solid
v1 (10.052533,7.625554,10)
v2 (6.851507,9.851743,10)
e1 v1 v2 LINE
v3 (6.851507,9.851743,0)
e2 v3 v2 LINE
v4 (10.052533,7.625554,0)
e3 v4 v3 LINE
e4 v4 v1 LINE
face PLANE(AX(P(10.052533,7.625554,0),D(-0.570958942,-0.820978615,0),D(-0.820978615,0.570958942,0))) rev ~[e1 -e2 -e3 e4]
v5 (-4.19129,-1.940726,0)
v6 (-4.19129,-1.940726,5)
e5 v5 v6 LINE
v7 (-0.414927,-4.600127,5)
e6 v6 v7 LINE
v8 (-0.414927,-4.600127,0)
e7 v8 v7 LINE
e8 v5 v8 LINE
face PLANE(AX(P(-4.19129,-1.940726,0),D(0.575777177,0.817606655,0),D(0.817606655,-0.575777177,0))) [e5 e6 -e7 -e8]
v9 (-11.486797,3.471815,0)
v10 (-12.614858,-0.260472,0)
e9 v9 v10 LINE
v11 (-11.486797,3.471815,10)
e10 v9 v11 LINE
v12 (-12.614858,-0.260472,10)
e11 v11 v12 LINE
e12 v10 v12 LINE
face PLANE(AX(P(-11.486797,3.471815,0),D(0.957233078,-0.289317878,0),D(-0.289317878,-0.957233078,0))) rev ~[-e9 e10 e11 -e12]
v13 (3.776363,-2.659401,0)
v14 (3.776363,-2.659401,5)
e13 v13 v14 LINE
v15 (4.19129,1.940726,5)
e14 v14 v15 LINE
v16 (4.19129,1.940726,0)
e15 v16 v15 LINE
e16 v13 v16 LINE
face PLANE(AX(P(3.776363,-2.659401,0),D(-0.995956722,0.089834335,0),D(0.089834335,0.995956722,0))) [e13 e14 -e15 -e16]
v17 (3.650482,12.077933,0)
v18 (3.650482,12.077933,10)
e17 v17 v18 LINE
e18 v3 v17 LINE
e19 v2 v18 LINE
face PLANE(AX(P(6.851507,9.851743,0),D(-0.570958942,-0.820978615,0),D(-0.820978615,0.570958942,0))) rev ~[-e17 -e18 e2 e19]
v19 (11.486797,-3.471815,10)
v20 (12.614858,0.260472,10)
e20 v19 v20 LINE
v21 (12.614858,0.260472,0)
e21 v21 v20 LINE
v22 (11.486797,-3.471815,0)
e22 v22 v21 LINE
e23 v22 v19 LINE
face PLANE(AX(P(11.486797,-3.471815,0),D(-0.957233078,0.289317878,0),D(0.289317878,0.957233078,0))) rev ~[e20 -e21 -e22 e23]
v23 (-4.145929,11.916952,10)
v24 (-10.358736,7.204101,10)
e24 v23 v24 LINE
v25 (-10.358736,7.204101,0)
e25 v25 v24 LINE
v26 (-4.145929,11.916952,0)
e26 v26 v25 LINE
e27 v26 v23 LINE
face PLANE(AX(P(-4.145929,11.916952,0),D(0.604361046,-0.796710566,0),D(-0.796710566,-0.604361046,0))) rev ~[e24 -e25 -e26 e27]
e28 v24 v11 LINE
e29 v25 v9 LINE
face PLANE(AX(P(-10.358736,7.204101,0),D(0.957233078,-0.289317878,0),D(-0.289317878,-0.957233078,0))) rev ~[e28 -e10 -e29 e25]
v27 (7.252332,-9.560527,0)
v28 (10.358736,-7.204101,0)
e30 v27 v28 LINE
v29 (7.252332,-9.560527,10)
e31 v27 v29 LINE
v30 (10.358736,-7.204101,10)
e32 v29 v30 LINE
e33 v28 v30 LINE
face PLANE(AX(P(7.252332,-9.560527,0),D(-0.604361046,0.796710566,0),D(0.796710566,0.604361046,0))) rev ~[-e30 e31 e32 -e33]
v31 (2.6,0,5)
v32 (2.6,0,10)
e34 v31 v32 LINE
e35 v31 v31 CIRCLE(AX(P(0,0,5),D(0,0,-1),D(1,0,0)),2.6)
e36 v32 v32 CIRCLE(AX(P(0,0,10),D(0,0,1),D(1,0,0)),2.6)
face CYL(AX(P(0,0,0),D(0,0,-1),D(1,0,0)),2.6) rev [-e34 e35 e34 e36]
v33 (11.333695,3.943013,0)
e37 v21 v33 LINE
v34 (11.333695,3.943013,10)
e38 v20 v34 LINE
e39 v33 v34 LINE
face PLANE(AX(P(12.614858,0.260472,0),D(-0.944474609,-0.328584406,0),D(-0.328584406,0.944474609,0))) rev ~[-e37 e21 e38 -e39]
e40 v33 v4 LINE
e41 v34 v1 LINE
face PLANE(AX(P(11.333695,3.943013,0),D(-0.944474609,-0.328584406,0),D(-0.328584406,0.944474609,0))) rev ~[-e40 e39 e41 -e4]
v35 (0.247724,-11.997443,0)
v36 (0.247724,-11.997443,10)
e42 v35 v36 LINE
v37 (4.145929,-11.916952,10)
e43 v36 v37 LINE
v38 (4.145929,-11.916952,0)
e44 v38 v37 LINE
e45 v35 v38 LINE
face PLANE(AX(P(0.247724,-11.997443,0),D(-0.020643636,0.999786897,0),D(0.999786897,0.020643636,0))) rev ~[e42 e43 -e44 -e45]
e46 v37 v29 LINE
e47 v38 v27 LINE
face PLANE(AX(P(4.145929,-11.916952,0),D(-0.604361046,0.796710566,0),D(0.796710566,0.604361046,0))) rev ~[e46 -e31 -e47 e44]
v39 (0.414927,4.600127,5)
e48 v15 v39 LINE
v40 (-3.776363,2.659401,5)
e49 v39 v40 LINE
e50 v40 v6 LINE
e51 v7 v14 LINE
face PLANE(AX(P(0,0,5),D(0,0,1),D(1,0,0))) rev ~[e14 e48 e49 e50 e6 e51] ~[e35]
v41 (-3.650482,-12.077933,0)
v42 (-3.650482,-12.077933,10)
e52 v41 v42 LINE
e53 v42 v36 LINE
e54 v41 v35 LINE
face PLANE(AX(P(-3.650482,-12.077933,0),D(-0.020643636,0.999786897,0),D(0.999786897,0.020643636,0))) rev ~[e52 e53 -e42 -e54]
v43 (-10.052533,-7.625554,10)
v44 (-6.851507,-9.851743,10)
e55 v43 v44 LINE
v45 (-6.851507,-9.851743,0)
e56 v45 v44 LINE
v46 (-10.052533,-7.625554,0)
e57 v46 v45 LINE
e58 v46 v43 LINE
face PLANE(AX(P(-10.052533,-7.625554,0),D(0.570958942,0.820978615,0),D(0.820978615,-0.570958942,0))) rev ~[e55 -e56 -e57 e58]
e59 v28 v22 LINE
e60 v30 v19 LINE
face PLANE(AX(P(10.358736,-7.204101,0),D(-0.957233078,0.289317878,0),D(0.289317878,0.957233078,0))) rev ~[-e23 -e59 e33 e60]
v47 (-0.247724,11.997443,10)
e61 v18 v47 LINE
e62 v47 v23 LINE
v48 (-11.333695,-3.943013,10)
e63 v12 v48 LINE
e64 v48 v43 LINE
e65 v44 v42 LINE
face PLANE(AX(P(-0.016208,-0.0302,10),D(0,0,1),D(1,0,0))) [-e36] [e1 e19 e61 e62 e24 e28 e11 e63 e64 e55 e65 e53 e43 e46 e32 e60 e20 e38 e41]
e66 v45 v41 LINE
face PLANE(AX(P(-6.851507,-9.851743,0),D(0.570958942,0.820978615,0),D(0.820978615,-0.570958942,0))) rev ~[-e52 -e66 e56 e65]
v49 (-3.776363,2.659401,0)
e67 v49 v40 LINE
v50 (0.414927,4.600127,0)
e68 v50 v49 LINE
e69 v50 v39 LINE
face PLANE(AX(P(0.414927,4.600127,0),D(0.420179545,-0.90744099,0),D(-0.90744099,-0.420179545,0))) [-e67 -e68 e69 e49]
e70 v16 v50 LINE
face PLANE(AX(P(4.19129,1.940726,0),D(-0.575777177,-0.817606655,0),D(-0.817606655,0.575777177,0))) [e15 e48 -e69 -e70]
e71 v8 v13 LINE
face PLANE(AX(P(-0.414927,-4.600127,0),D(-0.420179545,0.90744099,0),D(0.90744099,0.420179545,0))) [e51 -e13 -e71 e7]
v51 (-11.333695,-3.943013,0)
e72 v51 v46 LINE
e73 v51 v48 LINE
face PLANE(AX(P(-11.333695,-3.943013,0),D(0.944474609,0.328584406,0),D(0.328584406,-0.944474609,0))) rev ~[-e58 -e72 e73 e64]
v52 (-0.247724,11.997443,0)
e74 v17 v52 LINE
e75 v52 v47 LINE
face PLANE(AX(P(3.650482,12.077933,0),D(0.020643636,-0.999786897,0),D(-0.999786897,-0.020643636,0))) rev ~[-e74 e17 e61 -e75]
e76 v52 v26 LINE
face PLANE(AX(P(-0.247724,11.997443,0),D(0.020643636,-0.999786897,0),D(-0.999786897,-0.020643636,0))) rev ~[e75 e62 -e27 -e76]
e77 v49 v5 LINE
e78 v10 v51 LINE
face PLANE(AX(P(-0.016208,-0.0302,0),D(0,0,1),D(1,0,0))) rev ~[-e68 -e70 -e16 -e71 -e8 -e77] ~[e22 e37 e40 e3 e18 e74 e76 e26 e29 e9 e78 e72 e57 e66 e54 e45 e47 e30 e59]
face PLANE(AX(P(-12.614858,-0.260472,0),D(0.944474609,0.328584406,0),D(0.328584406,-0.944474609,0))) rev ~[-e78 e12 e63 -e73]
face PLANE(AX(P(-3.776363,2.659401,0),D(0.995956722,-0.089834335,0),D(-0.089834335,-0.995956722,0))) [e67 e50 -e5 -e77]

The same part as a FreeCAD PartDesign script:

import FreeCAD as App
import Part
import Sketcher

V = App.Vector


def add_polygon(sketch, points):
    """Adds a closed chain of lines whose ends are joined by coincident constraints."""
    first, n = sketch.GeometryCount, len(points)
    for a, b in zip(points, points[1:] + points[:1]):
        sketch.addGeometry(Part.LineSegment(App.Vector(*a, 0), App.Vector(*b, 0)), False)
    for i in range(n):
        sketch.addConstraint(Sketcher.Constraint("Coincident", first + i, 2, first + (i + 1) % n, 1))

doc = App.newDocument("Part")
body = doc.addObject("PartDesign::Body", "Body")

# Sketch on XY plane
sketch1 = body.newObject("Sketcher::SketchObject", "Sketch")
sketch1.AttachmentSupport = (doc.getObject("XY_Plane"), [""])
sketch1.MapMode = "FlatFace"
add_polygon(sketch1, [(6.9, 9.9), (3.7, 12.1), (-0.2, 12), (-4.1, 11.9), (-10.4, 7.2), (-11.5, 3.5), (-12.6, -0.3), (-11.3, -3.9), (-10.1, -7.6), (-6.9, -9.9), (-3.7, -12.1), (0.2, -12), (4.1, -11.9), (7.3, -9.6), (10.4, -7.2), (11.5, -3.5), (12.6, 0.3), (11.3, 3.9), (10.1, 7.6)])  # lines 0-18
sketch1.addGeometry(Part.Circle(V(0, 0, 0), V(0, 0, 1), 2.6), False)  # 19
sketch1.addConstraint([
    Sketcher.Constraint("Coincident", 19, 3, -1, 1),
    Sketcher.Constraint("Symmetric", 0, 2, 9, 2, -1, 1),
    Sketcher.Constraint("Symmetric", 1, 2, 10, 2, -1, 1),
    Sketcher.Constraint("Symmetric", 2, 2, 11, 2, -1, 1),
    Sketcher.Constraint("Symmetric", 3, 2, 13, 2, -1, 1),
    Sketcher.Constraint("Symmetric", 4, 2, 14, 2, -1, 1),
    Sketcher.Constraint("Symmetric", 5, 2, 15, 2, -1, 1),
    Sketcher.Constraint("Symmetric", 6, 2, 16, 2, -1, 1),
    Sketcher.Constraint("Symmetric", 7, 2, 17, 2, -1, 1),
    Sketcher.Constraint("Symmetric", 8, 2, 18, 2, -1, 1),
    Sketcher.Constraint("Parallel", 1, 2),
    Sketcher.Constraint("Parallel", 4, 5),
    Sketcher.Constraint("Parallel", 6, 7),
    Sketcher.Constraint("Parallel", 0, 8),
    Sketcher.Constraint("Parallel", 3, 12),
    Sketcher.Constraint("Equal", 0, 1),
    Sketcher.Constraint("Equal", 1, 2),
    Sketcher.Constraint("Equal", 2, 4),
    Sketcher.Constraint("Equal", 4, 5),
    Sketcher.Constraint("Equal", 5, 6),
    Sketcher.Constraint("Equal", 6, 7),
    Sketcher.Constraint("Equal", 7, 8),
    Sketcher.Constraint("Equal", 11, 12),
    Sketcher.Constraint("Equal", 12, 13),
    Sketcher.Constraint("Diameter", 19, 5.2),
    Sketcher.Constraint("DistanceY", 12, 2, 15, 2, 9.820999),
    Sketcher.Constraint("DistanceY", -1, 1, 3, 2, 7.204101),
    Sketcher.Constraint("DistanceX", 4, 2, 6, 2, 0.153102),
    Sketcher.Constraint("DistanceY", 10, 2, 8, 2, 2.145699),
    Sketcher.Constraint("DistanceX", -1, 1, 0, 2, 3.650482),
    Sketcher.Constraint("DistanceX", 2, 2, -1, 1, 4.145929),
])
pad1 = body.newObject("PartDesign::Pad", "Pad")
pad1.Profile = sketch1
pad1.Length = 10

# Sketch on XY plane
sketch2 = body.newObject("Sketcher::SketchObject", "Sketch001")
sketch2.AttachmentSupport = (doc.getObject("XY_Plane"), [""])
sketch2.MapMode = "FlatFace"
add_polygon(sketch2, [(0.4, 4.6), (-3.8, 2.7), (-4.2, -1.9), (-0.4, -4.6), (3.8, -2.7), (4.2, 1.9)])  # lines 0-5
sketch2.addConstraint([
    Sketcher.Constraint("Symmetric", 0, 2, 3, 2, -1, 1),
    Sketcher.Constraint("Symmetric", 1, 2, 4, 2, -1, 1),
    Sketcher.Constraint("Symmetric", 2, 2, 5, 2, -1, 1),
    Sketcher.Constraint("Equal", 0, 1),
    Sketcher.Constraint("Equal", 1, 2),
    Sketcher.Constraint("DistanceY", -1, 1, 0, 2, 2.659401),
    Sketcher.Constraint("DistanceY", 2, 2, 1, 2, 2.659401),
    Sketcher.Constraint("DistanceX", 1, 2, -1, 1, 4.19129),
    Sketcher.Constraint("DistanceX", 2, 2, 3, 2, 4.19129),
])
pocket1 = body.newObject("PartDesign::Pocket", "Pocket")
pocket1.Profile = sketch2
pocket1.Type = "TwoLengths"
pocket1.Length = 10
pocket1.Length2 = 5

doc.recompute()
